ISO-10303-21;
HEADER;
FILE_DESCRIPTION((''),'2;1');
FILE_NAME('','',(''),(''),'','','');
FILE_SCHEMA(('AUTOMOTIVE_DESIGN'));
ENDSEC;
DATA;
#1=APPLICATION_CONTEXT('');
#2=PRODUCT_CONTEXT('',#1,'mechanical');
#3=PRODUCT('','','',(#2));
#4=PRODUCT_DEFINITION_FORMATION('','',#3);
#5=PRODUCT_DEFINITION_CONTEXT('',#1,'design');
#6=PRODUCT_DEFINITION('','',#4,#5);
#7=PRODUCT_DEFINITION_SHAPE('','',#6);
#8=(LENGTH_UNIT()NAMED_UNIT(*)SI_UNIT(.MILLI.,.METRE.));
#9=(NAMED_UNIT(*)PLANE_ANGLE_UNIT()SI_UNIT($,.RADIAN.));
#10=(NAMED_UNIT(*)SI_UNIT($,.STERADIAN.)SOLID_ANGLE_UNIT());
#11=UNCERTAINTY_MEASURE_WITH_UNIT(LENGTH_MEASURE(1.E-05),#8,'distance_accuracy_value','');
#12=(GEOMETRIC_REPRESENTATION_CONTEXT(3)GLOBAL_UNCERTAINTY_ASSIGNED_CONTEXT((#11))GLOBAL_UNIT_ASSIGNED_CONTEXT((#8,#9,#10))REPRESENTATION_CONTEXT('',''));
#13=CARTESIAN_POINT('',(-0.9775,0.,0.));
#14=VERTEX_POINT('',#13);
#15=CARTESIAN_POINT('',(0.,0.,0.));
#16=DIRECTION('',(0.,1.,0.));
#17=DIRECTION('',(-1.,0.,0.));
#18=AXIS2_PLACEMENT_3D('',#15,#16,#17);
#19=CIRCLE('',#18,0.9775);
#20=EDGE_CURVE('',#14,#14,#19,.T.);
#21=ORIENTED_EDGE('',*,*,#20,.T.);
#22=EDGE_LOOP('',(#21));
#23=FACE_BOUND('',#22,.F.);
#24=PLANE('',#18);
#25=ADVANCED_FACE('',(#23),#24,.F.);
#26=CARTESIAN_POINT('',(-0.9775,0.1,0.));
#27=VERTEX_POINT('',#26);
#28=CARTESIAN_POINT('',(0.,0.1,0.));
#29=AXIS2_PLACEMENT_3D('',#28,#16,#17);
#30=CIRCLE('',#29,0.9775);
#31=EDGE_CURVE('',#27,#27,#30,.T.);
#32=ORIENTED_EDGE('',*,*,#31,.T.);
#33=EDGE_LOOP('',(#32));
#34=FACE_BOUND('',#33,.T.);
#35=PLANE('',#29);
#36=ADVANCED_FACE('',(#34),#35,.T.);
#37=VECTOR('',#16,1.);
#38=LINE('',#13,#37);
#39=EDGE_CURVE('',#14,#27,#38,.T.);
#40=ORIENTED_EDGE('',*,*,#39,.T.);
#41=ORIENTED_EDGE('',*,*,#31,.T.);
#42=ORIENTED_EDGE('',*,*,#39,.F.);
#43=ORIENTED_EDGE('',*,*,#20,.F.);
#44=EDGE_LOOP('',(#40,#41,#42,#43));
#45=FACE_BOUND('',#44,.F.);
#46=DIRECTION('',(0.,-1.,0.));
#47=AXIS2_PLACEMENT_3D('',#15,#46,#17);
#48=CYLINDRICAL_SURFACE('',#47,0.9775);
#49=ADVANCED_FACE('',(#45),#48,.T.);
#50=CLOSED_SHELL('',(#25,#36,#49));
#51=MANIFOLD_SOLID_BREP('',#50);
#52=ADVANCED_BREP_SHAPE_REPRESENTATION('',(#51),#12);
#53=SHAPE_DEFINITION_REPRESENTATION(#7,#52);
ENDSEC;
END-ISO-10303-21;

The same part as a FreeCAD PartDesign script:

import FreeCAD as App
import Part
import Sketcher

V = App.Vector
Q = App.Units.Quantity

doc = App.newDocument("Part")
params = doc.addObject("Spreadsheet::Sheet", "Params")
for row, (alias, value) in enumerate([
    ("pad1_length", "0.1 mm"),
], start=1):
    params.set(f"A{row}", alias)
    params.set(f"B{row}", "=" + value)
    params.setAlias(f"B{row}", alias)

body = doc.addObject("PartDesign::Body", "Body")

# Sketch on XZ plane
sketch1 = doc.addObject("Sketcher::SketchObject", "Sketch")
body.addObject(sketch1)
sketch1.AttachmentSupport = (doc.XZ_Plane, [""])
sketch1.MapMode = "FlatFace"
sketch1.addGeometry(Part.Circle(V(0, 0, 0), V(0, 0, 1), 0.9775), False)
sketch1.addConstraint([
    Sketcher.Constraint("Coincident", 0, 3, -1, 1),
    Sketcher.Constraint("Diameter", 0, Q("1.955 mm")),
])
pad1 = doc.addObject("PartDesign::Pad", "Pad")
body.addObject(pad1)
pad1.Profile = sketch1
pad1.setExpression("Length", "Params.pad1_length")
pad1.Reversed = True

doc.recompute()
